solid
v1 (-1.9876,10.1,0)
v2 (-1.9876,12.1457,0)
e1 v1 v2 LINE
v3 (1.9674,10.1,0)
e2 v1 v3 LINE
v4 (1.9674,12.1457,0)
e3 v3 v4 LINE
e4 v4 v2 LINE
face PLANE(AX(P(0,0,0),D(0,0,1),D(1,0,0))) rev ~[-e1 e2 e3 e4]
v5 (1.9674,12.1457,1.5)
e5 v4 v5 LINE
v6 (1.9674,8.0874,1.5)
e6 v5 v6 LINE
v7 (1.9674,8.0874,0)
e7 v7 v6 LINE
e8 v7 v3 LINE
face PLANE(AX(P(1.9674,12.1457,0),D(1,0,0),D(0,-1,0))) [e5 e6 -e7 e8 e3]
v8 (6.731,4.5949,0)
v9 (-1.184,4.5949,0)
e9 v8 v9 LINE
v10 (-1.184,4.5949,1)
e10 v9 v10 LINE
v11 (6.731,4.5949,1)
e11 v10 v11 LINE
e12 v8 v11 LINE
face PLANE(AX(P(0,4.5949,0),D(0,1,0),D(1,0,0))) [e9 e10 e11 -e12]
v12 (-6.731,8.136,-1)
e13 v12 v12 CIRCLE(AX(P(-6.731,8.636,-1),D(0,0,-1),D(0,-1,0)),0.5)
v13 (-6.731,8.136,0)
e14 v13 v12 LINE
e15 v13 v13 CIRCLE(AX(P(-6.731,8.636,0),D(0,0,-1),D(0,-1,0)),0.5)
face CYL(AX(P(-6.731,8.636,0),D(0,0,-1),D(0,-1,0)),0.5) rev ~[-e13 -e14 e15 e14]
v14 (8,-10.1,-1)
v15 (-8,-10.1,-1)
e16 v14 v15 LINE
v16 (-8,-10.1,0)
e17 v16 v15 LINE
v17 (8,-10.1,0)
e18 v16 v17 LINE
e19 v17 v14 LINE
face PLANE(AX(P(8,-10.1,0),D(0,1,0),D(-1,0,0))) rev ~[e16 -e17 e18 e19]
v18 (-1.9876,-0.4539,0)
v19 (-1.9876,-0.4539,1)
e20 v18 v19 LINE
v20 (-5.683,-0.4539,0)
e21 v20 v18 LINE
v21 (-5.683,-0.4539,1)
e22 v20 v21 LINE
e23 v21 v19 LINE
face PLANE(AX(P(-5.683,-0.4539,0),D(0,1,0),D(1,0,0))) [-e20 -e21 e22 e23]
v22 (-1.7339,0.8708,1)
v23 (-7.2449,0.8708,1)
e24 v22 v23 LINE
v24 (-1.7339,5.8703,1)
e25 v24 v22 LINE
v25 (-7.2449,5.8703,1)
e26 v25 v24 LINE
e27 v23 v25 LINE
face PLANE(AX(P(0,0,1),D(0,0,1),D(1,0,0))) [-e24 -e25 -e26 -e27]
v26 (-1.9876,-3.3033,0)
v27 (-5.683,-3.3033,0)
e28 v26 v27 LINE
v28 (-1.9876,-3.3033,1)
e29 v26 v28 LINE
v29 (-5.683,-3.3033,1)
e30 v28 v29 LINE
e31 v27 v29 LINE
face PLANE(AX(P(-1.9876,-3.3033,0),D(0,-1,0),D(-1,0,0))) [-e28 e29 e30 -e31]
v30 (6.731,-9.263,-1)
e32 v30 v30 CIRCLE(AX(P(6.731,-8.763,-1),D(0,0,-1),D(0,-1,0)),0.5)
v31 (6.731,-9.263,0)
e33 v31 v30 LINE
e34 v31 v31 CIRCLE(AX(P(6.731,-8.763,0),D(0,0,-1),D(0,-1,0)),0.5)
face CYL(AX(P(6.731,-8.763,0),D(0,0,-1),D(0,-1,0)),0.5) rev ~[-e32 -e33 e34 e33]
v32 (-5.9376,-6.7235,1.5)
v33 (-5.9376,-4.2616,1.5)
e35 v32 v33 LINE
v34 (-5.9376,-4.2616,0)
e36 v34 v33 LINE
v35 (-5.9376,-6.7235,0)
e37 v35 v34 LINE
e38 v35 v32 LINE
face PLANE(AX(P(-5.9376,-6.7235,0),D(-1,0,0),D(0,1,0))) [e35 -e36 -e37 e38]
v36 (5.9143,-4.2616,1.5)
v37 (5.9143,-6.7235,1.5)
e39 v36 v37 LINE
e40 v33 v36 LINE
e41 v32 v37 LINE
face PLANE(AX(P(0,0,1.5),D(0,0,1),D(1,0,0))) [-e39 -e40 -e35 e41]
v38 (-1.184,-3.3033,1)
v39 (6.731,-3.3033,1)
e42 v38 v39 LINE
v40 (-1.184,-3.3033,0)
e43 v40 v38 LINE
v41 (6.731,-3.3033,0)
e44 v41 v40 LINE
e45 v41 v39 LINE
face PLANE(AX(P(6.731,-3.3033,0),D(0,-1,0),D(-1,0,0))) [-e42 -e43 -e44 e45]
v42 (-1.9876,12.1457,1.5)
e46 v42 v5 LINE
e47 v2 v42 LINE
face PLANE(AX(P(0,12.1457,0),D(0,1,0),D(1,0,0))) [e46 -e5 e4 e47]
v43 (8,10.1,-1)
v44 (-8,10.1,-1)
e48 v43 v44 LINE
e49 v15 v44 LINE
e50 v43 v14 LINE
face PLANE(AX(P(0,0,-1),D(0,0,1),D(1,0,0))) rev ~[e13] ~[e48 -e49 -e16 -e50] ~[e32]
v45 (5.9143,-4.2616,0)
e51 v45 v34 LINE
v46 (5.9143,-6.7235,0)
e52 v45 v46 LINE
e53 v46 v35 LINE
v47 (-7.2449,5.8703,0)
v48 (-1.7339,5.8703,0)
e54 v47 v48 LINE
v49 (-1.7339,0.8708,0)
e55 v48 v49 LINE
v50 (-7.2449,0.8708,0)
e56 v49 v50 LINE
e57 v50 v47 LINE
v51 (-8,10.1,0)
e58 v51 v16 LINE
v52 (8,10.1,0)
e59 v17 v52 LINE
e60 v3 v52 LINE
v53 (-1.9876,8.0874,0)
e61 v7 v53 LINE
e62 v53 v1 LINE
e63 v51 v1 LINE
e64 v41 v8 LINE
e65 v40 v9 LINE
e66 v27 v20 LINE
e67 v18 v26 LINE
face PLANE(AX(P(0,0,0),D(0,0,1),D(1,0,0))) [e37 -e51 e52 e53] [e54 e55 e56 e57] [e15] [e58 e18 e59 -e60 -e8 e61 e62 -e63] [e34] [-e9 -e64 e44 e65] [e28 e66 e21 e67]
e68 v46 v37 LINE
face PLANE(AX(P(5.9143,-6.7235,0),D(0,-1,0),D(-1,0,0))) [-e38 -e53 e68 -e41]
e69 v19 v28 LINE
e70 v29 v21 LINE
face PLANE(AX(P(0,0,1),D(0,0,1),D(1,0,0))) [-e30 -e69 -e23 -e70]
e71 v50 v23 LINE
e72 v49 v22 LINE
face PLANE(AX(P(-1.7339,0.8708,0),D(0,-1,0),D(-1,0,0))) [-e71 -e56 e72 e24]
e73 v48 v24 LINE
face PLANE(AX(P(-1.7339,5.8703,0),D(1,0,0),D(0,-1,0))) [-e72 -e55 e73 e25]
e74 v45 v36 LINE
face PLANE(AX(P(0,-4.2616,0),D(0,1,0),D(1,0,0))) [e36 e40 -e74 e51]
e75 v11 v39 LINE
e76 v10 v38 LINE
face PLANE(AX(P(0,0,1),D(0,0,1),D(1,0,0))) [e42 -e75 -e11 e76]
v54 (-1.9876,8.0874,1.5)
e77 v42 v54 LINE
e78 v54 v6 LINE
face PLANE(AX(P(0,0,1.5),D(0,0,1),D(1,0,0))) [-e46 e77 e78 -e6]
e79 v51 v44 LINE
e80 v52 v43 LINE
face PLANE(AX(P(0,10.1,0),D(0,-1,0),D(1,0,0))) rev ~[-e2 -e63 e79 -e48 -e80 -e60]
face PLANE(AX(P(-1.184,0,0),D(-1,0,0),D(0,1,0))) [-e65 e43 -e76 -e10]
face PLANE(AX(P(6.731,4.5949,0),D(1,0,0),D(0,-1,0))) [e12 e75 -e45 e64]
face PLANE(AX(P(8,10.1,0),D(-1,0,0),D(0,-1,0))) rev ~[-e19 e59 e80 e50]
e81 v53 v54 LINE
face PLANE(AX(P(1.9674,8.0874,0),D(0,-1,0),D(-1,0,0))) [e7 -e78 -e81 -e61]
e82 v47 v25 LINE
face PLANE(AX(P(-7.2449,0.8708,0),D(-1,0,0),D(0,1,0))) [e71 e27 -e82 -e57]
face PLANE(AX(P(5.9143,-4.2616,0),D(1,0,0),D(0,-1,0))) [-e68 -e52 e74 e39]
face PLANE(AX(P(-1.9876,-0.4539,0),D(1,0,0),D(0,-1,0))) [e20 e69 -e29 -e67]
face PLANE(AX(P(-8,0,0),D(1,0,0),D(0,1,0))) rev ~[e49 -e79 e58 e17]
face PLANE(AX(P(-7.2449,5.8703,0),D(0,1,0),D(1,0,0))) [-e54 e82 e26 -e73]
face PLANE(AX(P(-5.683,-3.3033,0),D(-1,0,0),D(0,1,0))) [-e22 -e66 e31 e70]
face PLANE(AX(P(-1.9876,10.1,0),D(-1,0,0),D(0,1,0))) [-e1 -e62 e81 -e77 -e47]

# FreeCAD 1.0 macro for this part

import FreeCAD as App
import Part
import Sketcher


def add_polygon(sketch, points):
    """Adds a closed chain of lines whose ends are joined by coincident constraints."""
    first, n = sketch.GeometryCount, len(points)
    for a, b in zip(points, points[1:] + points[:1]):
        sketch.addGeometry(Part.LineSegment(App.Vector(*a, 0), App.Vector(*b, 0)), False)
    for i in range(n):
        sketch.addConstraint(Sketcher.Constraint("Coincident", first + i, 2, first + (i + 1) % n, 1))

doc = App.newDocument("Part")
body = doc.addObject("PartDesign::Body", "Body")

sketch1 = doc.addObject("Sketcher::SketchObject", "Sketch")
body.addObject(sketch1)
sketch1.AttachmentSupport = (doc.XY_Plane, [""])
sketch1.MapMode = "FlatFace"
add_polygon(sketch1, [(-8, 10), (-8, -10), (8, -10), (8, 10)])
sketch1.addConstraint(Sketcher.Constraint("Vertical", 0))
sketch1.addConstraint(Sketcher.Constraint("Horizontal", 1))
sketch1.addConstraint(Sketcher.Constraint("Vertical", 2))
sketch1.addConstraint(Sketcher.Constraint("Horizontal", 3))
sketch1.addConstraint(Sketcher.Constraint("Symmetric", 0, 2, 2, 2, -1, 1))
sketch1.addConstraint(Sketcher.Constraint("DistanceX", 1, 1, 1, 2, 16.0))
sketch1.addConstraint(Sketcher.Constraint("DistanceY", 0, 2, 0, 1, 20.2))
pad1 = doc.addObject("PartDesign::Pad", "Pad")
body.addObject(pad1)
pad1.Profile = sketch1
pad1.Length = 1
pad1.Reversed = True

sketch2 = doc.addObject("Sketcher::SketchObject", "Sketch001")
body.addObject(sketch2)
sketch2.AttachmentSupport = (doc.XY_Plane, [""])
sketch2.MapMode = "FlatFace"
add_polygon(sketch2, [(6.7, 4.6), (-1.2, 4.6), (-1.2, -3.3), (6.7, -3.3)])
add_polygon(sketch2, [(-1.7, 5.9), (-7.2, 5.9), (-7.2, 0.9), (-1.7, 0.9)])
add_polygon(sketch2, [(-2, -0.5), (-5.7, -0.5), (-5.7, -3.3), (-2, -3.3)])
sketch2.addConstraint(Sketcher.Constraint("Horizontal", 0))
sketch2.addConstraint(Sketcher.Constraint("Vertical", 1))
sketch2.addConstraint(Sketcher.Constraint("Horizontal", 2))
sketch2.addConstraint(Sketcher.Constraint("Vertical", 3))
sketch2.addConstraint(Sketcher.Constraint("Horizontal", 4))
sketch2.addConstraint(Sketcher.Constraint("Vertical", 5))
sketch2.addConstraint(Sketcher.Constraint("Horizontal", 6))
sketch2.addConstraint(Sketcher.Constraint("Vertical", 7))
sketch2.addConstraint(Sketcher.Constraint("Horizontal", 8))
sketch2.addConstraint(Sketcher.Constraint("Vertical", 9))
sketch2.addConstraint(Sketcher.Constraint("Horizontal", 10))
sketch2.addConstraint(Sketcher.Constraint("Vertical", 11))
sketch2.addConstraint(Sketcher.Constraint("Horizontal", 2, 2, 9, 2))
sketch2.addConstraint(Sketcher.Constraint("DistanceX", -1, 1, 2, 2, 6.731))
sketch2.addConstraint(Sketcher.Constraint("DistanceX", 0, 2, 0, 1, 7.915))
sketch2.addConstraint(Sketcher.Constraint("DistanceX", 4, 2, 4, 1, 5.511))
sketch2.addConstraint(Sketcher.Constraint("DistanceX", 6, 2, 0, 2, 0.55))
sketch2.addConstraint(Sketcher.Constraint("DistanceX", 8, 2, 8, 1, 3.6954))
sketch2.addConstraint(Sketcher.Constraint("DistanceY", 1, 2, 1, 1, 7.8982))
sketch2.addConstraint(Sketcher.Constraint("DistanceY", 5, 2, 5, 1, 4.9995))
sketch2.addConstraint(Sketcher.Constraint("DistanceY", 9, 2, 9, 1, 2.8494))
sketch2.addConstraint(Sketcher.Constraint("DistanceY", -1, 1, 0, 2, 4.595))
sketch2.addConstraint(Sketcher.Constraint("DistanceX", 8, 2, -1, 1, 5.683))
sketch2.addConstraint(Sketcher.Constraint("DistanceY", 5, 2, 0, 2, 3.724))
pad2 = doc.addObject("PartDesign::Pad", "Pad001")
body.addObject(pad2)
pad2.Profile = sketch2
pad2.Length = 1

sketch3 = doc.addObject("Sketcher::SketchObject", "Sketch002")
body.addObject(sketch3)
sketch3.AttachmentSupport = (doc.XY_Plane, [""])
sketch3.MapMode = "FlatFace"
add_polygon(sketch3, [(2, 12.1), (-2, 12.1), (-2, 8.1), (2, 8.1)])
add_polygon(sketch3, [(5.9, -4.3), (-5.9, -4.3), (-5.9, -6.7), (5.9, -6.7)])
sketch3.addConstraint(Sketcher.Constraint("Horizontal", 0))
sketch3.addConstraint(Sketcher.Constraint("Vertical", 1))
sketch3.addConstraint(Sketcher.Constraint("Horizontal", 2))
sketch3.addConstraint(Sketcher.Constraint("Vertical", 3))
sketch3.addConstraint(Sketcher.Constraint("Horizontal", 4))
sketch3.addConstraint(Sketcher.Constraint("Vertical", 5))
sketch3.addConstraint(Sketcher.Constraint("Horizontal", 6))
sketch3.addConstraint(Sketcher.Constraint("Vertical", 7))
sketch3.addConstraint(Sketcher.Constraint("DistanceX", 0, 2, 0, 1, 3.955))
sketch3.addConstraint(Sketcher.Constraint("DistanceX", 4, 2, 4, 1, 11.852))
sketch3.addConstraint(Sketcher.Constraint("DistanceY", 5, 2, 5, 1, 2.462))
sketch3.addConstraint(Sketcher.Constraint("DistanceX", 4, 2, 1, 2, 3.95))
sketch3.addConstraint(Sketcher.Constraint("DistanceY", 1, 2, 1, 1, 4.0583))
sketch3.addConstraint(Sketcher.Constraint("DistanceY", 4, 2, 1, 2, 12.349))
sketch3.addConstraint(Sketcher.Constraint("DistanceX", 0, 2, -1, 1, 1.9876))
sketch3.addConstraint(Sketcher.Constraint("DistanceY", -1, 1, 0, 2, 12.1457))
pad3 = doc.addObject("PartDesign::Pad", "Pad002")
body.addObject(pad3)
pad3.Profile = sketch3
pad3.Length = 1.5

sketch4 = doc.addObject("Sketcher::SketchObject", "Sketch003")
body.addObject(sketch4)
sketch4.AttachmentSupport = (doc.XY_Plane, [""])
sketch4.MapMode = "FlatFace"
sketch4.addGeometry(Part.Circle(App.Vector(6.7, -8.8, 0), App.Vector(0, 0, 1), 0.5), False)
sketch4.addGeometry(Part.Circle(App.Vector(-6.7, 8.6, 0), App.Vector(0, 0, 1), 0.5), False)
sketch4.addConstraint(Sketcher.Constraint("Equal", 0, 1))
sketch4.addConstraint(Sketcher.Constraint("Diameter", 0, 1.0))
sketch4.addConstraint(Sketcher.Constraint("DistanceX", -1, 1, 0, 3, 6.731))
sketch4.addConstraint(Sketcher.Constraint("DistanceY", 0, 3, -1, 1, 8.763))
sketch4.addConstraint(Sketcher.Constraint("DistanceX", 1, 3, -1, 1, 6.731))
sketch4.addConstraint(Sketcher.Constraint("DistanceY", -1, 1, 1, 3, 8.636))
doc.recompute()
hole = doc.addObject("PartDesign::Hole", "Hole")
body.addObject(hole)
hole.Profile = sketch4
hole.ThreadType = "None"
hole.Diameter = 1
hole.DepthType = "Dimension"
hole.Depth = 25.4
hole.DrillPoint = "Angled"
hole.DrillPointAngle = 118

doc.recompute()
